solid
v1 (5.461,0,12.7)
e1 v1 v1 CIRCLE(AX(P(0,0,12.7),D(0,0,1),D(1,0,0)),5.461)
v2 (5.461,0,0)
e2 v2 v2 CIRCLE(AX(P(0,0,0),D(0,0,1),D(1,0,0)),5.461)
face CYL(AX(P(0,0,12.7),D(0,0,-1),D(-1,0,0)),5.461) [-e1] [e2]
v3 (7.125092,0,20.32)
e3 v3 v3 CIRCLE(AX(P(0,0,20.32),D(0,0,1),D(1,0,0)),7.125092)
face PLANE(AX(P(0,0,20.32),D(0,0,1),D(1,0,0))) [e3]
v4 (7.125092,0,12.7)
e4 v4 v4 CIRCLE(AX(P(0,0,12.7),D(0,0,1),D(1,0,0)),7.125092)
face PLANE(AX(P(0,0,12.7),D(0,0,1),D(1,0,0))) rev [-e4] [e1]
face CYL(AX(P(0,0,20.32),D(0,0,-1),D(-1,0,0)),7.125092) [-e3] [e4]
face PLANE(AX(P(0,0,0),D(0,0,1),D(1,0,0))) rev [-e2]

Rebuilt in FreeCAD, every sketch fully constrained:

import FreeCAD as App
import Part
import Sketcher
from FreeCAD import Vector
Q = App.Units.Quantity

doc = App.newDocument("Part")
body = doc.addObject("PartDesign::Body", "Body")

# Sketch on XY plane
sketch1 = body.newObject("Sketcher::SketchObject", "Sketch")
sketch1.AttachmentSupport = (doc.getObject("XY_Plane"), [""])
sketch1.MapMode = "FlatFace"
sketch1.addGeometry(Part.Circle(Vector(0, 0, 0), Vector(0, 0, 1), 5), False)
sketch1.addConstraint([
    Sketcher.Constraint("Coincident", 0, 3, -1, 1),
    Sketcher.Constraint("Diameter", 0, Q("0.43 in")),
])
pad1 = body.newObject("PartDesign::Pad", "Pad")
pad1.Profile = sketch1
pad1.Length = Q("0.5 in")

# Sketch on XY plane
sketch2 = body.newObject("Sketcher::SketchObject", "Sketch001")
sketch2.AttachmentSupport = (doc.getObject("XY_Plane"), [""])
sketch2.MapMode = "FlatFace"
sketch2.AttachmentOffset = App.Placement(Vector(0, 0, 0.5 * 25.4), App.Rotation())
sketch2.addGeometry(Part.Circle(Vector(0, 0, 0), Vector(0, 0, 1), 7), False)
sketch2.addConstraint([
    Sketcher.Constraint("Coincident", 0, 3, -1, 1),
    Sketcher.Constraint("Diameter", 0, 14.250184),
])
pad2 = body.newObject("PartDesign::Pad", "Pad001")
pad2.Profile = sketch2
pad2.Length = Q("0.3 in")

doc.recompute()
